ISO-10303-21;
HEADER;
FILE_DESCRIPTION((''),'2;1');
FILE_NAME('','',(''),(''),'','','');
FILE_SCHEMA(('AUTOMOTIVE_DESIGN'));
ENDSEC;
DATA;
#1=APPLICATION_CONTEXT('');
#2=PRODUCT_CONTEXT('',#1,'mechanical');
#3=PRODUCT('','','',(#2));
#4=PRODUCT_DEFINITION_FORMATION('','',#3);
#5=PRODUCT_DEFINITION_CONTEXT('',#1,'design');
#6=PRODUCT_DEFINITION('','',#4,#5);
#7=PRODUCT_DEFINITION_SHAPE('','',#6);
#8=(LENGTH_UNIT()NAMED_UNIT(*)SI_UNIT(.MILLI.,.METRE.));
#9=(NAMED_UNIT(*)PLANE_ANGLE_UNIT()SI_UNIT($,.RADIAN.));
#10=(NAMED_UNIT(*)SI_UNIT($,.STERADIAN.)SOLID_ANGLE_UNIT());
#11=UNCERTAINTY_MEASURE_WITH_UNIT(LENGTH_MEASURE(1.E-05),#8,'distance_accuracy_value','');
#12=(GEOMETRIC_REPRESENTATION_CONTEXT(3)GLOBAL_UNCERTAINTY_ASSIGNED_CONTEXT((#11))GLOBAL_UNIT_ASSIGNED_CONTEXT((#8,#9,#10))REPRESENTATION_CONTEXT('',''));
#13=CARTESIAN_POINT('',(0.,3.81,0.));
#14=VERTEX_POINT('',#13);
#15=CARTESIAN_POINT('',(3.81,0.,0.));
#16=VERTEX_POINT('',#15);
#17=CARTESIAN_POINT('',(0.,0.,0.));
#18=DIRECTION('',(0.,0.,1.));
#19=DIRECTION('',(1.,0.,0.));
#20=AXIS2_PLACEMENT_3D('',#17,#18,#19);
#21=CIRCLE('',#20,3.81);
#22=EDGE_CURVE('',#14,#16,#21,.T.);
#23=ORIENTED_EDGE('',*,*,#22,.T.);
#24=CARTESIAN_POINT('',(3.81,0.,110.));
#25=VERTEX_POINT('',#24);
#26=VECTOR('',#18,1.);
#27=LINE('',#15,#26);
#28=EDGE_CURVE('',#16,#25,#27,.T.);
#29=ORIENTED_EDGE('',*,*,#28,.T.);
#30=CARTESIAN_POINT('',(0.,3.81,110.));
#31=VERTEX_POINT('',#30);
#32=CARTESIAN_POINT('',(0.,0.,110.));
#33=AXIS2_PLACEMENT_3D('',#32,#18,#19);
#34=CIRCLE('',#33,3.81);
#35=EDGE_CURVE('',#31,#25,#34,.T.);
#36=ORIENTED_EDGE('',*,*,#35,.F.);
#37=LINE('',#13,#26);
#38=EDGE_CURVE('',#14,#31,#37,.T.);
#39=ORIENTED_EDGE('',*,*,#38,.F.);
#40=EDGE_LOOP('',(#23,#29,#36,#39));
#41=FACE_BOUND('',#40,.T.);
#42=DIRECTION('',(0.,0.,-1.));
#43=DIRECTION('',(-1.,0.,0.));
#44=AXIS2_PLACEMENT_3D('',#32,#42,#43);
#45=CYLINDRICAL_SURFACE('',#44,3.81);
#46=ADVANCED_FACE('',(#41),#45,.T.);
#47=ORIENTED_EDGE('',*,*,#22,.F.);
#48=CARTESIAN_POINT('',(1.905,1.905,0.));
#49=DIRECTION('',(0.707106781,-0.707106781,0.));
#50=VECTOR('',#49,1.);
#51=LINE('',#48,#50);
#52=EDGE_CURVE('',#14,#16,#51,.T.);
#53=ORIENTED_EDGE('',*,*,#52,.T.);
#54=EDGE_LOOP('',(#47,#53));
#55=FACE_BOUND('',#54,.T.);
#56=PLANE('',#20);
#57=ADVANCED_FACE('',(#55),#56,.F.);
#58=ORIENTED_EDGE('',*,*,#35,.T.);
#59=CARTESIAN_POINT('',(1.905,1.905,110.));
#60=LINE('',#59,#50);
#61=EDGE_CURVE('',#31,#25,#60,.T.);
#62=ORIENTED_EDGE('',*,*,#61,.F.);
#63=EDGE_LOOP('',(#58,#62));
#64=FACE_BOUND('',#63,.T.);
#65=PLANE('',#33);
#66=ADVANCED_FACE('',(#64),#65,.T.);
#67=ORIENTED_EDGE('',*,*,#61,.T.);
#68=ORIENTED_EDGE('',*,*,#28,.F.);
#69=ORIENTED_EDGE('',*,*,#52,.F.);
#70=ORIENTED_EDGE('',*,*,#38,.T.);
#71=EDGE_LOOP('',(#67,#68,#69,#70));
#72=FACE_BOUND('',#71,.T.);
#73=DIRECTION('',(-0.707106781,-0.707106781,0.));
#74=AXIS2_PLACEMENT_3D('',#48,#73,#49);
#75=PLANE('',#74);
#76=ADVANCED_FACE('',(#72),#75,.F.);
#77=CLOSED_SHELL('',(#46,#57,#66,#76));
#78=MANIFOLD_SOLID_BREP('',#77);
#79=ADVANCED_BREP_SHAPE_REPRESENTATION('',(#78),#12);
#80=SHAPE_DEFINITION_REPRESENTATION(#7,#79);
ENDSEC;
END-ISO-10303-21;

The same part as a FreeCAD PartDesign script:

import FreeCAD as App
import Part
import Sketcher

V = App.Vector
Q = App.Units.Quantity


def add_polygon(sketch, points):
    """Adds a closed chain of lines whose ends are joined by coincident constraints."""
    first, n = sketch.GeometryCount, len(points)
    for a, b in zip(points, points[1:] + points[:1]):
        sketch.addGeometry(Part.LineSegment(App.Vector(*a, 0), App.Vector(*b, 0)), False)
    for i in range(n):
        sketch.addConstraint(Sketcher.Constraint("Coincident", first + i, 2, first + (i + 1) % n, 1))

doc = App.newDocument("Part")
body = doc.addObject("PartDesign::Body", "Body")

sketch1 = body.newObject("Sketcher::SketchObject", "Sketch")
sketch1.AttachmentSupport = (doc.getObject("XY_Plane"), [""])
sketch1.MapMode = "FlatFace"
sketch1.addGeometry(Part.Circle(V(0, 0, 0), V(0, 0, 1), 3.8), False)
sketch1.addConstraint(Sketcher.Constraint("Coincident", 0, 3, -1, 1))
sketch1.addConstraint(Sketcher.Constraint("Diameter", 0, Q("7.62 mm")))
pad1 = body.newObject("PartDesign::Pad", "Pad")
pad1.Profile = sketch1
pad1.Length = 110

sketch2 = body.newObject("Sketcher::SketchObject", "Sketch001")
sketch2.AttachmentSupport = (doc.getObject("XY_Plane"), [""])
sketch2.MapMode = "FlatFace"
sketch2.AttachmentOffset = App.Placement(V(0, 0, 110), App.Rotation())
add_polygon(sketch2, [(-19, 23), (23, -19), (61, 19), (19, 61)])
sketch2.addConstraint(Sketcher.Constraint("Perpendicular", 0, 1))
sketch2.addConstraint(Sketcher.Constraint("Perpendicular", 1, 2))
sketch2.addConstraint(Sketcher.Constraint("Perpendicular", 2, 3))
sketch2.addConstraint(Sketcher.Constraint("Angle", 0, Q("-45 deg")))
sketch2.addConstraint(Sketcher.Constraint("DistanceX", 2, 2, 0, 2, Q("3.81 mm")))
sketch2.addConstraint(Sketcher.Constraint("Distance", 0, Q("59.46583 mm")))
sketch2.addConstraint(Sketcher.Constraint("DistanceX", -1, 1, 0, 2, Q("22.929346 mm")))
sketch2.addConstraint(Sketcher.Constraint("DistanceY", 0, 2, -1, 1, Q("19.119346 mm")))
pocket1 = body.newObject("PartDesign::Pocket", "Pocket")
pocket1.Profile = sketch2
pocket1.Type = "ThroughAll"

doc.recompute()
